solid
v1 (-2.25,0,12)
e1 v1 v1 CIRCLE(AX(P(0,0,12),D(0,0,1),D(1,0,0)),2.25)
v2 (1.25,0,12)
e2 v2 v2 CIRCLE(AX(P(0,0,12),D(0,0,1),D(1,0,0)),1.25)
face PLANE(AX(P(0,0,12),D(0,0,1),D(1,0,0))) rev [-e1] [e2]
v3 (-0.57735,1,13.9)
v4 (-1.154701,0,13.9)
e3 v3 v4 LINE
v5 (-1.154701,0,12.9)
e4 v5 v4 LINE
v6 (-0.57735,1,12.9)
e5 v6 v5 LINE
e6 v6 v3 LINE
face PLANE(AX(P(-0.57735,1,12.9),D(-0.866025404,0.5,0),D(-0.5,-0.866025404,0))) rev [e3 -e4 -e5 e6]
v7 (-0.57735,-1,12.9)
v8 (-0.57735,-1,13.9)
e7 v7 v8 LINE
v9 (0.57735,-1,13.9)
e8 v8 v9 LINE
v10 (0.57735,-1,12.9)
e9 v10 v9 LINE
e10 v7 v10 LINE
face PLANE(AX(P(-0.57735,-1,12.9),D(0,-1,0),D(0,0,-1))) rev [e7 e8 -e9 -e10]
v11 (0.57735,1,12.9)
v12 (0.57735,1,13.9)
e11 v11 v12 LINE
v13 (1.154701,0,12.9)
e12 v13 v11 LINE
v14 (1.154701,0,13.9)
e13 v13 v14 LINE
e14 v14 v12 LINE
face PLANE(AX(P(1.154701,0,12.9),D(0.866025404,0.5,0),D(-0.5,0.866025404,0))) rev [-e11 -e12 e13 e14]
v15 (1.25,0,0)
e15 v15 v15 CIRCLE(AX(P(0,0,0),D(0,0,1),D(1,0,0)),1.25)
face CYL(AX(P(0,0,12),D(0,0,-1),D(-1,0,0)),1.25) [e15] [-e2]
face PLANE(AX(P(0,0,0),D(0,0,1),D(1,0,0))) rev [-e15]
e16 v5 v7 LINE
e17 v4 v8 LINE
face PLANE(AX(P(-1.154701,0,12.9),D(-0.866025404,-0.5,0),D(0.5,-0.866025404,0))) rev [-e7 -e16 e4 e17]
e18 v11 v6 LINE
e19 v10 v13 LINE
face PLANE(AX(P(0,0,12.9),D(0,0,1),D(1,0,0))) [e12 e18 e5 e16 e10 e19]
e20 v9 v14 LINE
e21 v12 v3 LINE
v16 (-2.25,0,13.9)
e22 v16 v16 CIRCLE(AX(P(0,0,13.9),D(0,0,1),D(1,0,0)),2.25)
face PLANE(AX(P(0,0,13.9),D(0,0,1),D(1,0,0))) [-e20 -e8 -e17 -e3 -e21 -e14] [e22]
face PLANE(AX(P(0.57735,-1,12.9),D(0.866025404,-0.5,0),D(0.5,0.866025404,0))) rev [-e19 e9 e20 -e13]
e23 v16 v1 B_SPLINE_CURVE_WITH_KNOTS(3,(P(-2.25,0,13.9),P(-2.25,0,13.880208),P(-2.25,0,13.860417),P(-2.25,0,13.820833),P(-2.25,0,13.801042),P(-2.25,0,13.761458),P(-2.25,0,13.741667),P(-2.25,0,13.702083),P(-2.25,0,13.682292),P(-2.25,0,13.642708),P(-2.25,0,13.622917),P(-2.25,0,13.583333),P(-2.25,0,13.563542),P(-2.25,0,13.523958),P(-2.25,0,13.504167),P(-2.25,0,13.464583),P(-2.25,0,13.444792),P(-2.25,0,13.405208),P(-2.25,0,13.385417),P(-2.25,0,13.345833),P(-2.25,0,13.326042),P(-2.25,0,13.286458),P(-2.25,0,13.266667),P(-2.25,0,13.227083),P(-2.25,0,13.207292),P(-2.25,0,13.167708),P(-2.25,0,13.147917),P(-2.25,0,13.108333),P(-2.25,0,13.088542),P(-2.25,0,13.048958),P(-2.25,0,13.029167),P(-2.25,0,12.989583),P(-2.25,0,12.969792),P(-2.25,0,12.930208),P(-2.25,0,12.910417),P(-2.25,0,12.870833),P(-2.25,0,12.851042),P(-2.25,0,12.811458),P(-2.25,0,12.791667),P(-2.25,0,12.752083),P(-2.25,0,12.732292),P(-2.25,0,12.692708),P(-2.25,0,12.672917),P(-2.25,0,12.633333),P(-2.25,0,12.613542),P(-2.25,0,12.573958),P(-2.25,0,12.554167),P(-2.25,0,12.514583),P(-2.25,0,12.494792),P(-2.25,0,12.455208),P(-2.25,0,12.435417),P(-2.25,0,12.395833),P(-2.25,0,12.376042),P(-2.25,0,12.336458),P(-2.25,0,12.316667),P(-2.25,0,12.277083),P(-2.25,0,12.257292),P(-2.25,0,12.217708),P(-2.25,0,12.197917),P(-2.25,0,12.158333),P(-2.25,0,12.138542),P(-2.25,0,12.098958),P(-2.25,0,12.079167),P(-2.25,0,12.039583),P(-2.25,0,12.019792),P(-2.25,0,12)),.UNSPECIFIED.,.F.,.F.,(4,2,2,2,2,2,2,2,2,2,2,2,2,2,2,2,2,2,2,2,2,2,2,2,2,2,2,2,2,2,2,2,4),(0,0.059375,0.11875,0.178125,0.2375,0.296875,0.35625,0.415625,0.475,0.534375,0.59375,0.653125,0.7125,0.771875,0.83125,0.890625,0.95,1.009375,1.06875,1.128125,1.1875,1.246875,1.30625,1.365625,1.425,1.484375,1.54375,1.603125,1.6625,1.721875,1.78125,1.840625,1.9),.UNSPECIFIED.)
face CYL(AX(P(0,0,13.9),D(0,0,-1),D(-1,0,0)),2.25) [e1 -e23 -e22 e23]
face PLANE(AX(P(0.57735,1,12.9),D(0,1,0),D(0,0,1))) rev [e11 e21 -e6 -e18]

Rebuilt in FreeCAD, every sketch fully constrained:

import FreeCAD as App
import Part
import Sketcher
Q = App.Units.Quantity

doc = App.newDocument("Part")
body = doc.addObject("PartDesign::Body", "Body")

# Sketch on XY plane
sketch1 = body.newObject("Sketcher::SketchObject", "Sketch")
sketch1.AttachmentSupport = (doc.getObject("XY_Plane"), [""])
sketch1.MapMode = "FlatFace"
sketch1.addGeometry(Part.Circle(App.Vector(0, 0, 0), App.Vector(0, 0, 1), 1.2), False)
sketch1.addConstraint([
    Sketcher.Constraint("Coincident", 0, 3, -1, 1),
    Sketcher.Constraint("Diameter", 0, Q("2.5 mm")),
])
pad1 = body.newObject("PartDesign::Pad", "Pad")
pad1.Profile = sketch1
pad1.Length = 12

# Sketch on XY plane
sketch2 = body.newObject("Sketcher::SketchObject", "Sketch001")
sketch2.AttachmentSupport = (doc.getObject("XY_Plane"), [""])
sketch2.MapMode = "FlatFace"
sketch2.AttachmentOffset = App.Placement(App.Vector(0, 0, 12), App.Rotation())
sketch2.addGeometry(Part.Circle(App.Vector(0, 0, 0), App.Vector(0, 0, 1), 2.2), False)
sketch2.addConstraint([
    Sketcher.Constraint("Coincident", 0, 3, -1, 1),
    Sketcher.Constraint("Diameter", 0, Q("4.5 mm")),
])
pad2 = body.newObject("PartDesign::Pad", "Pad001")
pad2.Profile = sketch2
pad2.Length = 1.9

# Sketch on XY plane
sketch3 = body.newObject("Sketcher::SketchObject", "Sketch002")
sketch3.AttachmentSupport = (doc.getObject("XY_Plane"), [""])
sketch3.MapMode = "FlatFace"
sketch3.AttachmentOffset = App.Placement(App.Vector(0, 0, 13.9), App.Rotation())
sketch3.addGeometry([
    Part.LineSegment(App.Vector(1.2, 0, 0), App.Vector(0.6, 1, 0)),  # 0
    Part.LineSegment(App.Vector(0.6, 1, 0), App.Vector(-0.6, 1, 0)),  # 1
    Part.LineSegment(App.Vector(-0.6, 1, 0), App.Vector(-1.2, 0, 0)),  # 2
    Part.LineSegment(App.Vector(-1.2, 0, 0), App.Vector(-0.6, -1, 0)),  # 3
    Part.LineSegment(App.Vector(-0.6, -1, 0), App.Vector(0.6, -1, 0)),  # 4
    Part.LineSegment(App.Vector(0.6, -1, 0), App.Vector(1.2, 0, 0)),  # 5
], False)
sketch3.addConstraint([
    Sketcher.Constraint("Coincident", 0, 2, 1, 1),
    Sketcher.Constraint("Coincident", 1, 2, 2, 1),
    Sketcher.Constraint("Coincident", 2, 2, 3, 1),
    Sketcher.Constraint("Coincident", 3, 2, 4, 1),
    Sketcher.Constraint("Coincident", 4, 2, 5, 1),
    Sketcher.Constraint("Coincident", 5, 2, 0, 1),
    Sketcher.Constraint("Horizontal", 1),
    Sketcher.Constraint("Horizontal", 4),
    Sketcher.Constraint("Symmetric", 0, 2, 3, 2, -1, 1),
    Sketcher.Constraint("Symmetric", 2, 2, 5, 2, -1, 1),
    Sketcher.Constraint("PointOnObject", 2, 2, -1),
    Sketcher.Constraint("Parallel", 2, 5),
    Sketcher.Constraint("Vertical", 1, 2, 3, 2),
    Sketcher.Constraint("Angle", 0, Q("120 deg")),
    Sketcher.Constraint("DistanceY", -1, 1, 0, 2, Q("1 mm")),
    Sketcher.Constraint("DistanceX", 1, 2, 1, 1, Q("1.154701 mm")),
])
pocket1 = body.newObject("PartDesign::Pocket", "Pocket")
pocket1.Profile = sketch3
pocket1.Length = 1

doc.recompute()
